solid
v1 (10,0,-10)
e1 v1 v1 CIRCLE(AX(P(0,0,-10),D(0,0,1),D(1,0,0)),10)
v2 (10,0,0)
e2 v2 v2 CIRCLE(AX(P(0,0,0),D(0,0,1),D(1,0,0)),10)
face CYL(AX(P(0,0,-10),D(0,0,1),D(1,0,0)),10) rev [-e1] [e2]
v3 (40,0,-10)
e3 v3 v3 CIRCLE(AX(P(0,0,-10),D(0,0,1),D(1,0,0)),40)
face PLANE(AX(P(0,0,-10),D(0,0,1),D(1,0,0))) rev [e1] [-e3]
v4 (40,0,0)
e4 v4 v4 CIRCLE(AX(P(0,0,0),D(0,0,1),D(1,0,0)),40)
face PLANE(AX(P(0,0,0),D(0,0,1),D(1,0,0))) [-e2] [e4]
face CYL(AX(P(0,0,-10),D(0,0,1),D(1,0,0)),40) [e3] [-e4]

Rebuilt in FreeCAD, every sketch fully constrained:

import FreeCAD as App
import Part
import Sketcher

doc = App.newDocument("Part")
params = doc.addObject("Spreadsheet::Sheet", "Params")
for row, (alias, value) in enumerate([
    ("sketch1_diameter", "80 mm"),
    ("pad1_length", "10 mm"),
    ("sketch2_diameter", "20 mm"),
], start=1):
    params.set(f"A{row}", alias)
    params.set(f"B{row}", "=" + value)
    params.setAlias(f"B{row}", alias)

body = doc.addObject("PartDesign::Body", "Body")

# Sketch on XY plane
sketch1 = body.newObject("Sketcher::SketchObject", "Sketch")
sketch1.AttachmentSupport = (doc.getObject("XY_Plane"), [""])
sketch1.MapMode = "FlatFace"
sketch1.addGeometry(Part.Circle(App.Vector(0, 0, 0), App.Vector(0, 0, 1), 40), False)
sketch1.addConstraint([
    Sketcher.Constraint("Coincident", 0, 3, -1, 1),
    Sketcher.Constraint("Diameter", 0, 80.0),
])
sketch1.setExpression("Constraints[1]", "Params.sketch1_diameter")
pad1 = body.newObject("PartDesign::Pad", "Pad")
pad1.Profile = sketch1
pad1.setExpression("Length", "Params.pad1_length")
pad1.Reversed = True

# Sketch on XY plane
sketch2 = body.newObject("Sketcher::SketchObject", "Sketch001")
sketch2.AttachmentSupport = (doc.getObject("XY_Plane"), [""])
sketch2.MapMode = "FlatFace"
sketch2.addGeometry(Part.Circle(App.Vector(0, 0, 0), App.Vector(0, 0, 1), 10), False)
sketch2.addConstraint([
    Sketcher.Constraint("Coincident", 0, 3, -1, 1),
    Sketcher.Constraint("Diameter", 0, 20.0),
])
sketch2.setExpression("Constraints[1]", "Params.sketch2_diameter")
pocket1 = body.newObject("PartDesign::Pocket", "Pocket")
pocket1.Profile = sketch2
pocket1.Type = "ThroughAll"

doc.recompute()
